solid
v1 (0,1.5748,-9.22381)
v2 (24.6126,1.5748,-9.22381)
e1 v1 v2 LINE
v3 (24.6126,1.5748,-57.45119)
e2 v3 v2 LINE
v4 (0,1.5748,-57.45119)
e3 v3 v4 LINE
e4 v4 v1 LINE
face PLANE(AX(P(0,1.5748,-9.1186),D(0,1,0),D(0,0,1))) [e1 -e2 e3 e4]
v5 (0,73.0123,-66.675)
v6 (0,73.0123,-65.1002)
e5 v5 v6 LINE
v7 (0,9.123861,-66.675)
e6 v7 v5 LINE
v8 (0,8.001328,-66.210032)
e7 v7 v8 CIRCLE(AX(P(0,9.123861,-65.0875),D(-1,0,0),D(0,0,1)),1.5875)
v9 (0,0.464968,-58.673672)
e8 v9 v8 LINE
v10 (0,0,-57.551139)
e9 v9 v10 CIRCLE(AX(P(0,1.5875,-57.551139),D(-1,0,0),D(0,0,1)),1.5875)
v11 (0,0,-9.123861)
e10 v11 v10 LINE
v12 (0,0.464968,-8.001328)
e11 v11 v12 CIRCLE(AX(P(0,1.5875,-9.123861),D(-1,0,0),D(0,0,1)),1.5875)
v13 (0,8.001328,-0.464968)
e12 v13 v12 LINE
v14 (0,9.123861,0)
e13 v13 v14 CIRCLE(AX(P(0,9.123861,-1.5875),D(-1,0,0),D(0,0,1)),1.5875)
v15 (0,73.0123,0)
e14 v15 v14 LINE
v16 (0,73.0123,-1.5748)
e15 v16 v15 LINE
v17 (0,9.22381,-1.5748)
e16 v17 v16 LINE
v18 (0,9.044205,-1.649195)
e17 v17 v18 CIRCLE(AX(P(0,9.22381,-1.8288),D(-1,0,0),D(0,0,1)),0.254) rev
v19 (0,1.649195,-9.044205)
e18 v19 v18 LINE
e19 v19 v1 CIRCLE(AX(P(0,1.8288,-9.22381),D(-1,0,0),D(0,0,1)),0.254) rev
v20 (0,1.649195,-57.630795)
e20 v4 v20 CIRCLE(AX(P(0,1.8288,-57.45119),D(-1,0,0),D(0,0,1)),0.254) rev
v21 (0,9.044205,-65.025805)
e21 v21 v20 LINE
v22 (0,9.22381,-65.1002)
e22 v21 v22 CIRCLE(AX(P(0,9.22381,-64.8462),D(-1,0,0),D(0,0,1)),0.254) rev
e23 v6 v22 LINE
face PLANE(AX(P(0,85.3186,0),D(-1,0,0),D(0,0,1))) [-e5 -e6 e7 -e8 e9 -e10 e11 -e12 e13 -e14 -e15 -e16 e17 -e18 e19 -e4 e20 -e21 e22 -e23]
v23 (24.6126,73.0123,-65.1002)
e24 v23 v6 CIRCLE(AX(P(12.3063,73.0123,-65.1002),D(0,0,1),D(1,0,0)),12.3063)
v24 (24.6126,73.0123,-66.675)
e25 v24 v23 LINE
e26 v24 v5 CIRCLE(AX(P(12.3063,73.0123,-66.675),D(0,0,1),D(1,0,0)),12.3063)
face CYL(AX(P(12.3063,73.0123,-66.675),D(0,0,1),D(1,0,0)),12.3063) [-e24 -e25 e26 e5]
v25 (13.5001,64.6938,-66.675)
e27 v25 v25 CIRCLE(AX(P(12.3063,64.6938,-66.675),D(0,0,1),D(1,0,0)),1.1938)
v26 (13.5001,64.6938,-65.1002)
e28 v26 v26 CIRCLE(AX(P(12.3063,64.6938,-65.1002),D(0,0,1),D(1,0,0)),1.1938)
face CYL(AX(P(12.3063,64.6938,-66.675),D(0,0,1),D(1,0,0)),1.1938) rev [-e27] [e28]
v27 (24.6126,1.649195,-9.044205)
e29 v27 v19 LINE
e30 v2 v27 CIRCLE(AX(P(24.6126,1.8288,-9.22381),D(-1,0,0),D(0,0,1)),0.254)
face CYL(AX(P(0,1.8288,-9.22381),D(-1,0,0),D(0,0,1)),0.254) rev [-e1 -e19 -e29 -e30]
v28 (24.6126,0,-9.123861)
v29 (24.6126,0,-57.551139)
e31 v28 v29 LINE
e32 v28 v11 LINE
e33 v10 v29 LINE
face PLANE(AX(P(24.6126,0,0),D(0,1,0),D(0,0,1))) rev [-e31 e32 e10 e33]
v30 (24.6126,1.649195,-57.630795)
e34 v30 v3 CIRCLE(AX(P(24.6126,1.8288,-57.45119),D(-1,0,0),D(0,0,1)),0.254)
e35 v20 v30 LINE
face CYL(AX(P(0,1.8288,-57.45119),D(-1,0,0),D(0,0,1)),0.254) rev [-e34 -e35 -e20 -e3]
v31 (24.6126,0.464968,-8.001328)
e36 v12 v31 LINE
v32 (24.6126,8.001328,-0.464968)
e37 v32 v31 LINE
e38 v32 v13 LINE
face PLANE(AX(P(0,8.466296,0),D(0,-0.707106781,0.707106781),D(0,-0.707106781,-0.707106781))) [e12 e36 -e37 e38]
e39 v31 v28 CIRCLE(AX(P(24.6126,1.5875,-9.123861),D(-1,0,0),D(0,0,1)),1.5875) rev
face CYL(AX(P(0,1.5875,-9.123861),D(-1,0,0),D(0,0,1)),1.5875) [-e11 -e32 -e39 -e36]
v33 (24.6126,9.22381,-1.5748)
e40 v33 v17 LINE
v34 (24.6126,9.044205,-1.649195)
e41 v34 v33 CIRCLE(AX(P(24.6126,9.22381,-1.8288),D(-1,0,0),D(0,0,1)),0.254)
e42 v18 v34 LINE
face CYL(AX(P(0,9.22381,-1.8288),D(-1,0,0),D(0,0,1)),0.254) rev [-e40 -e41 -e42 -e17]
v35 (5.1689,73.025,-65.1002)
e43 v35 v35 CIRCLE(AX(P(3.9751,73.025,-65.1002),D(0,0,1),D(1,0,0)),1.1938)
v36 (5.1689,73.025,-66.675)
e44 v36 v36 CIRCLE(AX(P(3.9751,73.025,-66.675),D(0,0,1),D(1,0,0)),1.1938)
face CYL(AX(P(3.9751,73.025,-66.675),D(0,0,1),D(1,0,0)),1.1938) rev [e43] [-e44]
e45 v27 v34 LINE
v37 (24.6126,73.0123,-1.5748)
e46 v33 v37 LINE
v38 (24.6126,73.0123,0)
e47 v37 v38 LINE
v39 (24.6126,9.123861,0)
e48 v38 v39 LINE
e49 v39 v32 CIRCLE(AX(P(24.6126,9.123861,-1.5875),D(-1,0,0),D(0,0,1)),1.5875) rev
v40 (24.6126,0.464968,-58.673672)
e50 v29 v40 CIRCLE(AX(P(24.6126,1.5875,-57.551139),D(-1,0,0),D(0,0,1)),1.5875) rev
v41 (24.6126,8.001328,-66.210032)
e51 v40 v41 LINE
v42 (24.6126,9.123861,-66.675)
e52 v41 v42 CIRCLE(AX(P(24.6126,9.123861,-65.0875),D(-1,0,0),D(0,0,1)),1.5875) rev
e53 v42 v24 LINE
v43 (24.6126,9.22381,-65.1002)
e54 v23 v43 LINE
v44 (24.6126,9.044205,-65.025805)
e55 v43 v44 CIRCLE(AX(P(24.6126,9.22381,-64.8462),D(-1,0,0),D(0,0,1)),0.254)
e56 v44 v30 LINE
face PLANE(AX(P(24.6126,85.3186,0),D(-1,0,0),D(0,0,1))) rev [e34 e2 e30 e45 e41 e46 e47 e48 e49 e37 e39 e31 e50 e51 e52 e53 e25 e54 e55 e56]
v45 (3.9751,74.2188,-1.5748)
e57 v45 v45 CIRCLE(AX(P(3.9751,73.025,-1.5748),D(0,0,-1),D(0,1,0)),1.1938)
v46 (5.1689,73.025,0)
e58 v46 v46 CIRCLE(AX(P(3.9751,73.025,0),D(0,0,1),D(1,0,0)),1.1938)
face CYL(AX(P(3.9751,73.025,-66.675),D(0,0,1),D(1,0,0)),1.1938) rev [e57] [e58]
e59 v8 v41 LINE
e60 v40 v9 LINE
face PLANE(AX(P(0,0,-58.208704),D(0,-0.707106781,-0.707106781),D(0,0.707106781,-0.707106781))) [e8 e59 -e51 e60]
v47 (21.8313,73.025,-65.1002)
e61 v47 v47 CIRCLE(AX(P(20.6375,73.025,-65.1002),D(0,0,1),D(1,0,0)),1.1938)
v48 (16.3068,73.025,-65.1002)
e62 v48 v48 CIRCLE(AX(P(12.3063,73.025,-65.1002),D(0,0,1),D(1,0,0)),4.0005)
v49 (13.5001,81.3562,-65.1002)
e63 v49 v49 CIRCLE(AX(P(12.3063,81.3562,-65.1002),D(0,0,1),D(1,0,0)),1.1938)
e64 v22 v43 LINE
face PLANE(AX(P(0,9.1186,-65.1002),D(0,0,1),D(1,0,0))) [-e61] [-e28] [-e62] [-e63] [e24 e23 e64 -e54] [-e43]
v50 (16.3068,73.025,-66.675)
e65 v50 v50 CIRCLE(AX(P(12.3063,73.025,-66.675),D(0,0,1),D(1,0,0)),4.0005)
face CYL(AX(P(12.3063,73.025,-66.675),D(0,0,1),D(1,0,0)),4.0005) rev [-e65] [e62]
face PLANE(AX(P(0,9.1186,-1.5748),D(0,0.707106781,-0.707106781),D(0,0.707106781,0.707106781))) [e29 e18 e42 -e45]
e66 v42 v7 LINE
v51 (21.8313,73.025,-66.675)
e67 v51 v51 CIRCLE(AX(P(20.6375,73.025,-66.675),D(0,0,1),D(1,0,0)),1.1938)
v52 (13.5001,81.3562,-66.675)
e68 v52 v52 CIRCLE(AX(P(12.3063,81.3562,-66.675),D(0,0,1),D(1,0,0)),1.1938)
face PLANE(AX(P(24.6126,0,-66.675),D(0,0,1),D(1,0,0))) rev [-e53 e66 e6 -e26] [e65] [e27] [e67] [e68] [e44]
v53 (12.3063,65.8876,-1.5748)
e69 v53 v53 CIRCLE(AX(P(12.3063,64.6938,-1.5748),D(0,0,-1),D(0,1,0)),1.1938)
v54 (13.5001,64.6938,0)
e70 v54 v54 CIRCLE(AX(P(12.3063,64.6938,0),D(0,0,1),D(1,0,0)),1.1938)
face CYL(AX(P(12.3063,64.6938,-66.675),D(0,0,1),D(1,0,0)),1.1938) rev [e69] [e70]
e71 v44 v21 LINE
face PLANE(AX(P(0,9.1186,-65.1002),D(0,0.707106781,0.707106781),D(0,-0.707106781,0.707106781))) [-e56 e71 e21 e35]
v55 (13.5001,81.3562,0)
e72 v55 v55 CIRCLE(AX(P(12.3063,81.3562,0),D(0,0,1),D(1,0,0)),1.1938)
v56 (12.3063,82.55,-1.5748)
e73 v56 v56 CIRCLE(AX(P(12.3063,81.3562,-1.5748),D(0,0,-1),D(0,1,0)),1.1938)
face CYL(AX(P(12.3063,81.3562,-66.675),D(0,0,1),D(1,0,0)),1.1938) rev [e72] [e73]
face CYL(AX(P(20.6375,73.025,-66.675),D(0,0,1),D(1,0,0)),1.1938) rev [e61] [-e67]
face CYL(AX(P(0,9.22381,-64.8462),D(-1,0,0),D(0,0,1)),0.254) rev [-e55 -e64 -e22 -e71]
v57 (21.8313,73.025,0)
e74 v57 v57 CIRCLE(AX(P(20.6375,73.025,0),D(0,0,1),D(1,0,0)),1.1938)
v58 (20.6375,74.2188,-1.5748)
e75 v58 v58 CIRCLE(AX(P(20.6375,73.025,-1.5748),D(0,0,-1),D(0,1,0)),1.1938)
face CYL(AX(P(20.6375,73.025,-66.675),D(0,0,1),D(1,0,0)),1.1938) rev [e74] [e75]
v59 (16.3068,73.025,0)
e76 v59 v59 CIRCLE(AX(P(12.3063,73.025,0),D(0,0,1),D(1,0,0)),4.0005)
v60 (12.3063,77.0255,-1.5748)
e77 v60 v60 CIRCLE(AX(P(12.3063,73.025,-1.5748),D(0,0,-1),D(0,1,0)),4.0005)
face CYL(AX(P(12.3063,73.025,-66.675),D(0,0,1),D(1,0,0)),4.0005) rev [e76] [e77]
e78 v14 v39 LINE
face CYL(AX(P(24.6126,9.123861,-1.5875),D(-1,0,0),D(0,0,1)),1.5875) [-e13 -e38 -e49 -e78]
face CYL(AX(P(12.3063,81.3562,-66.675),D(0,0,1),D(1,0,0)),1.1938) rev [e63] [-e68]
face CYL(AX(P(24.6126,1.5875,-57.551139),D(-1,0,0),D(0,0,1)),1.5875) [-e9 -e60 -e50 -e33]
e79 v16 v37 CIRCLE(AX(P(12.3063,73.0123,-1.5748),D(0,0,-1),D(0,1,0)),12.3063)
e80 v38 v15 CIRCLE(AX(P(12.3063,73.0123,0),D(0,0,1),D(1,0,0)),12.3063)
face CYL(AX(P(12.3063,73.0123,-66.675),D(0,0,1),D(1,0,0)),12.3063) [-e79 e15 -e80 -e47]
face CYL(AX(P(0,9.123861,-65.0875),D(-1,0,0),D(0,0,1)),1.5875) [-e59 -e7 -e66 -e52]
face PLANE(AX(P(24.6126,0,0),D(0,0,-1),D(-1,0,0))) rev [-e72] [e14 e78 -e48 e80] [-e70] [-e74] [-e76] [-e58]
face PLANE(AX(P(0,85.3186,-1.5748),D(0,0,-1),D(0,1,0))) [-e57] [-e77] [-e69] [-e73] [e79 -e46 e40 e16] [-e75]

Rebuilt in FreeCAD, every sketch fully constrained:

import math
import FreeCAD as App
import Part
import Sketcher

V = App.Vector
Q = App.Units.Quantity


def edges_at(feature, points):
    """Names of the edges that pass closest to the given points."""
    edges = feature.Shape.Edges
    near = lambda p: min(range(len(edges)), key=lambda i: edges[i].distToShape(Part.Vertex(*p))[0])
    return sorted({f"Edge{near(p) + 1}" for p in points})


def add_polygon(sketch, points):
    """Adds a closed chain of lines whose ends are joined by coincident constraints."""
    first, n = sketch.GeometryCount, len(points)
    for a, b in zip(points, points[1:] + points[:1]):
        sketch.addGeometry(Part.LineSegment(App.Vector(*a, 0), App.Vector(*b, 0)), False)
    for i in range(n):
        sketch.addConstraint(Sketcher.Constraint("Coincident", first + i, 2, first + (i + 1) % n, 1))

doc = App.newDocument("Part")
body = doc.addObject("PartDesign::Body", "Body")

# Sketch on YZ plane
sketch1 = body.newObject("Sketcher::SketchObject", "Sketch")
sketch1.AttachmentSupport = (doc.getObject("YZ_Plane"), [""])
sketch1.MapMode = "FlatFace"
add_polygon(sketch1, [(85.3186, 0), (0, 0), (0, -66.675), (85.3186, -66.675)])  # lines 0-3
sketch1.addConstraint([
    Sketcher.Constraint("Horizontal", 0),
    Sketcher.Constraint("Vertical", 1),
    Sketcher.Constraint("Horizontal", 2),
    Sketcher.Constraint("Vertical", 3),
    Sketcher.Constraint("Coincident", 0, 2, -1, 1),
    Sketcher.Constraint("DistanceX", 0, 2, 0, 1, Q("3.359 in")),
    Sketcher.Constraint("DistanceY", 1, 2, 1, 1, Q("2.625 in")),
])
pad1 = body.newObject("PartDesign::Pad", "Pad")
pad1.Profile = sketch1
pad1.Length = Q("0.969 in")

# Sketch on YZ plane
sketch2 = body.newObject("Sketcher::SketchObject", "Sketch001")
sketch2.AttachmentSupport = (doc.getObject("YZ_Plane"), [""])
sketch2.MapMode = "FlatFace"
sketch2.AttachmentOffset = App.Placement(V(0, 0, 0.969 * 25.4), App.Rotation())
add_polygon(sketch2, [(97.423, 12.104), (-12.104, 12.104), (-12.104, -78.779), (97.423, -78.779)])  # lines 0-3
add_polygon(sketch2, [(85.3186, 0), (85.3186, -1.5748), (9.1186, -1.5748), (1.5748, -9.1186), (1.5748, -57.5564), (9.1186, -65.1002), (85.3186, -65.1002), (85.3186, -66.675), (8.466296, -66.675), (0, -58.208704), (0, -8.466296), (8.466296, 0)])  # lines 4-15
sketch2.addConstraint([
    Sketcher.Constraint("Horizontal", 0),
    Sketcher.Constraint("Vertical", 1),
    Sketcher.Constraint("Horizontal", 2),
    Sketcher.Constraint("Vertical", 3),
    Sketcher.Constraint("Vertical", 4),
    Sketcher.Constraint("Horizontal", 5),
    Sketcher.Constraint("Vertical", 7),
    Sketcher.Constraint("Horizontal", 9),
    Sketcher.Constraint("Vertical", 10),
    Sketcher.Constraint("Horizontal", 11),
    Sketcher.Constraint("Vertical", 13),
    Sketcher.Constraint("Horizontal", 15),
    Sketcher.Constraint("PointOnObject", 12, 2, -2),
    Sketcher.Constraint("PointOnObject", 14, 2, -1),
    Sketcher.Constraint("Perpendicular", 6, 8),
    Sketcher.Constraint("Parallel", 8, 12),
    Sketcher.Constraint("Perpendicular", 12, 14),
    Sketcher.Constraint("Vertical", 5, 2, 8, 2),
    Sketcher.Constraint("Vertical", 4, 2, 9, 2),
    Sketcher.Constraint("Vertical", 11, 2, 14, 2),
    Sketcher.Constraint("Equal", 4, 10),
    Sketcher.Constraint("Equal", 6, 8),
    Sketcher.Constraint("DistanceX", 5, 2, 5, 1, Q("3 in")),
    Sketcher.Constraint("DistanceY", 4, 2, 4, 1, Q("0.062 in")),
    Sketcher.Constraint("DistanceY", 7, 2, 7, 1, Q("1.907 in")),
    Sketcher.Constraint("DistanceX", -1, 1, 4, 2, Q("3.359 in")),
    Sketcher.Constraint("DistanceX", -1, 1, 6, 2, Q("0.062 in")),
    Sketcher.Constraint("DistanceX", 0, 2, 0, 1, 109.527),
    Sketcher.Constraint("DistanceY", 1, 2, 1, 1, 90.883),
    Sketcher.Constraint("DistanceX", 0, 2, -1, 1, 12.104),
    Sketcher.Constraint("DistanceY", -1, 1, 0, 2, 12.104),
    Sketcher.Constraint("Distance", 12, 11.973151),
])
pocket1 = body.newObject("PartDesign::Pocket", "Pocket")
pocket1.Profile = sketch2
pocket1.Length = Q("0.969 in")

# Sketch on XY plane
sketch3 = body.newObject("Sketcher::SketchObject", "Sketch002")
sketch3.AttachmentSupport = (doc.getObject("XY_Plane"), [""])
sketch3.MapMode = "FlatFace"
add_polygon(sketch3, [(-12.104, 97.423), (-12.104, -12.104), (36.717, -12.104), (36.717, 97.423)])  # lines 0-3
sketch3.addGeometry(Part.LineSegment(V(0, 0, 0), V(0, 73.0123, 0)), False)  # 4
sketch3.addGeometry(Part.ArcOfCircle(Part.Circle(V(12.3063, 73.0123, 0), V(0, 0, 1), 12.3063), math.radians(0), math.radians(180)), False)  # 5
sketch3.addGeometry(Part.LineSegment(V(24.6126, 73.0123, 0), V(24.6126, 0, 0)), False)  # 6
sketch3.addGeometry(Part.LineSegment(V(24.6126, 0, 0), V(0, 0, 0)), False)  # 7
sketch3.addConstraint([
    Sketcher.Constraint("Tangent", 4, 2, 5, 2),
    Sketcher.Constraint("Tangent", 5, 1, 6, 1),
    Sketcher.Constraint("Coincident", 6, 2, 7, 1),
    Sketcher.Constraint("Coincident", 7, 2, 4, 1),
    Sketcher.Constraint("Vertical", 0),
    Sketcher.Constraint("Horizontal", 1),
    Sketcher.Constraint("Vertical", 2),
    Sketcher.Constraint("Horizontal", 3),
    Sketcher.Constraint("Vertical", 4),
    Sketcher.Constraint("Vertical", 6),
    Sketcher.Constraint("Horizontal", 7),
    Sketcher.Constraint("Coincident", 7, 2, -1, 1),
    Sketcher.Constraint("Radius", 5, Q("0.4845 in")),
    Sketcher.Constraint("DistanceY", 4, 1, 4, 2, Q("2.8745 in")),
    Sketcher.Constraint("DistanceX", 1, 1, 1, 2, 48.821),
    Sketcher.Constraint("DistanceY", 0, 2, 0, 1, 109.527),
    Sketcher.Constraint("DistanceX", 0, 2, -1, 1, 12.104),
    Sketcher.Constraint("DistanceY", 0, 2, -1, 1, 12.104),
])
pocket2 = body.newObject("PartDesign::Pocket", "Pocket001")
pocket2.Profile = sketch3
pocket2.Type = "ThroughAll"
doc.recompute()

fillet = body.newObject("PartDesign::Fillet", "Fillet")
fillet.Base = (pocket2, edges_at(pocket2, [
    (12.306, 8.466, -66.675),
    (12.306, 0, -58.209),
    (12.306, 0, -8.466),
    (12.306, 8.466, 0),
]))
fillet.Radius = Q("0.0625 in")
doc.recompute()

fillet2 = body.newObject("PartDesign::Fillet", "Fillet001")
fillet2.Base = (fillet, edges_at(fillet, [
    (12.306, 9.119, -1.575),
    (12.306, 1.575, -9.119),
    (12.306, 1.575, -57.556),
    (12.306, 9.119, -65.1),
]))
fillet2.Radius = Q("0.01 in")

# Sketch on XY plane
sketch4 = body.newObject("Sketcher::SketchObject", "Sketch003")
sketch4.AttachmentSupport = (doc.getObject("XY_Plane"), [""])
sketch4.MapMode = "FlatFace"
sketch4.addGeometry([
    Part.Circle(V(12.3063, 73.025, 0), V(0, 0, 1), 4.0005),  # 0
    Part.Circle(V(12.3063, 81.3562, 0), V(0, 0, 1), 1.1938),  # 1
    Part.Circle(V(3.9751, 73.025, 0), V(0, 0, 1), 1.1938),  # 2
    Part.Circle(V(12.3063, 64.6938, 0), V(0, 0, 1), 1.1938),  # 3
    Part.Circle(V(20.6375, 73.025, 0), V(0, 0, 1), 1.1938),  # 4
], False)
sketch4.addConstraint([
    Sketcher.Constraint("Equal", 1, 2),
    Sketcher.Constraint("Equal", 2, 3),
    Sketcher.Constraint("Equal", 3, 4),
    Sketcher.Constraint("Horizontal", 0, 3, 2, 3),
    Sketcher.Constraint("Horizontal", 2, 3, 4, 3),
    Sketcher.Constraint("Vertical", 0, 3, 1, 3),
    Sketcher.Constraint("Vertical", 1, 3, 3, 3),
    Sketcher.Constraint("Diameter", 0, Q("0.315 in")),
    Sketcher.Constraint("Diameter", 1, Q("0.094 in")),
    Sketcher.Constraint("DistanceY", -1, 1, 0, 3, Q("2.875 in")),
    Sketcher.Constraint("DistanceY", -1, 1, 1, 3, Q("3.203 in")),
    Sketcher.Constraint("DistanceY", -1, 1, 3, 3, Q("2.547 in")),
    Sketcher.Constraint("DistanceX", -1, 1, 4, 3, Q("0.8125 in")),
    Sketcher.Constraint("DistanceX", 2, 3, 0, 3, Q("0.328 in")),
    Sketcher.Constraint("DistanceX", 0, 3, 4, 3, Q("0.328 in")),
])
pocket3 = body.newObject("PartDesign::Pocket", "Pocket002")
pocket3.Profile = sketch4
pocket3.Type = "ThroughAll"

doc.recompute()
